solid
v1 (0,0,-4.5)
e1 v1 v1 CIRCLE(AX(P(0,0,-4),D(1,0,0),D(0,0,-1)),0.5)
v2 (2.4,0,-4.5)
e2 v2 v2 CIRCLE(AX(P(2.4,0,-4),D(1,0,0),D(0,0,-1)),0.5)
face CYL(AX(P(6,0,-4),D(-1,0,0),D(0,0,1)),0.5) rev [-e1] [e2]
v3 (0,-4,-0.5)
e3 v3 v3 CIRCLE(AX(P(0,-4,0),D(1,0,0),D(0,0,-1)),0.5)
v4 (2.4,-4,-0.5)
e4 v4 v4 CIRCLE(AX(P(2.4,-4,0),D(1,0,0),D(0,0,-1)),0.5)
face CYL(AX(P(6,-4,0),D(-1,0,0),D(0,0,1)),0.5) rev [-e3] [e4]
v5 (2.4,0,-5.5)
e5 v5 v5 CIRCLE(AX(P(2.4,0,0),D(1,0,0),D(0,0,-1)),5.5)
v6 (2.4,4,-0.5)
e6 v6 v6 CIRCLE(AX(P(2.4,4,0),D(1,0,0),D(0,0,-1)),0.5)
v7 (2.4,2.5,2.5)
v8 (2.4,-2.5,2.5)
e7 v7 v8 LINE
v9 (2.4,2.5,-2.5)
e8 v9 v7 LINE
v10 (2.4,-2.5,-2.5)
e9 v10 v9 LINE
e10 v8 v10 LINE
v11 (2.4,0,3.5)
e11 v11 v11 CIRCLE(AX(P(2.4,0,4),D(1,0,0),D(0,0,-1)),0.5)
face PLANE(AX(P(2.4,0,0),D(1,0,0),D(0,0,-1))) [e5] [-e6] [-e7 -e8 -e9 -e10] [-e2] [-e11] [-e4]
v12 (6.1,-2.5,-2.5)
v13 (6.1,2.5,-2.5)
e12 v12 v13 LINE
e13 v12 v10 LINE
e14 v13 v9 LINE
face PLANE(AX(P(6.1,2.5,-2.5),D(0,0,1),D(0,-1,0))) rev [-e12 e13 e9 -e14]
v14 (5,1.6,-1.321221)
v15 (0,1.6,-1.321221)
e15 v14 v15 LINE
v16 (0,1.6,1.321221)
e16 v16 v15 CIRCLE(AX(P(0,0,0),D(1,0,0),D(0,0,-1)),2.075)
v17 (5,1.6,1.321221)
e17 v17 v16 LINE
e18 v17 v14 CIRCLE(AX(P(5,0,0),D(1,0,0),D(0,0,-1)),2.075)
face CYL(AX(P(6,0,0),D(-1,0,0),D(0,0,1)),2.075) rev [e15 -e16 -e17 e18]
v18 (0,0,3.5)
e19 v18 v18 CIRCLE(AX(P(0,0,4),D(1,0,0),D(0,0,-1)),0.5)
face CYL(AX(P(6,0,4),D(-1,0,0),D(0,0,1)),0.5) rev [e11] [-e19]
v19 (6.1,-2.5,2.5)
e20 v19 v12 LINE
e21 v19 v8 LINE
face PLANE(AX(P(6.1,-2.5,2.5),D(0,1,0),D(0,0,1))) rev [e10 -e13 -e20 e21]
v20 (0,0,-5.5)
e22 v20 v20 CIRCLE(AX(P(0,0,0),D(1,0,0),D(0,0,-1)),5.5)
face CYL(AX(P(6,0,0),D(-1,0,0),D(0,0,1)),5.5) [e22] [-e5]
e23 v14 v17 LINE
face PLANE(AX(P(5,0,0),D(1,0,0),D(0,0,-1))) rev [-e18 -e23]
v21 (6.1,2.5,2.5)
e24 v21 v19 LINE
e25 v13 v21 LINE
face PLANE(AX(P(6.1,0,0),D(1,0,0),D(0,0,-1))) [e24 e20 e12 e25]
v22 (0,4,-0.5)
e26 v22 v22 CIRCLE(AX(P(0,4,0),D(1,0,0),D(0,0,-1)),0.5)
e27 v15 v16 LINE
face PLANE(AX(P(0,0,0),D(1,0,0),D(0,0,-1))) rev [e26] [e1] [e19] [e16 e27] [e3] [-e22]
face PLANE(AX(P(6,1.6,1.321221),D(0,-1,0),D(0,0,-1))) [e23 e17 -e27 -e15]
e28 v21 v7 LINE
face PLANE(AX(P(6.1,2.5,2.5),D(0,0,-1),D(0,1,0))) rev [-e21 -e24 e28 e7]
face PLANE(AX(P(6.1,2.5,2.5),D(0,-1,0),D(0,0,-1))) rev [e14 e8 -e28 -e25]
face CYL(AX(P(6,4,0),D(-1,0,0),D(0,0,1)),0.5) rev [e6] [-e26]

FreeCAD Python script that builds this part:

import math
import FreeCAD as App
import Part
import Sketcher
from FreeCAD import Vector
Q = App.Units.Quantity


def add_polygon(sketch, points):
    """Adds a closed chain of lines whose ends are joined by coincident constraints."""
    first, n = sketch.GeometryCount, len(points)
    for a, b in zip(points, points[1:] + points[:1]):
        sketch.addGeometry(Part.LineSegment(App.Vector(*a, 0), App.Vector(*b, 0)), False)
    for i in range(n):
        sketch.addConstraint(Sketcher.Constraint("Coincident", first + i, 2, first + (i + 1) % n, 1))

doc = App.newDocument("Part")
body = doc.addObject("PartDesign::Body", "Body")

sketch1 = doc.addObject("Sketcher::SketchObject", "Sketch")
body.addObject(sketch1)
sketch1.AttachmentSupport = (doc.YZ_Plane, [""])
sketch1.MapMode = "FlatFace"
sketch1.addGeometry([
    Part.Circle(Vector(0, 0, 0), Vector(0, 0, 1), 5.5),
    Part.Circle(Vector(-4, 0, 0), Vector(0, 0, 1), 0.5),
    Part.ArcOfCircle(Part.Circle(Vector(0, 0, 0), Vector(0, 0, 1), 2.1), math.radians(40), math.radians(320)),
    Part.LineSegment(Vector(1.6, 1.3, 0), Vector(1.6, -1.3, 0)),
    Part.Circle(Vector(0, 4, 0), Vector(0, 0, 1), 0.5),
    Part.Circle(Vector(0, -4, 0), Vector(0, 0, 1), 0.5),
    Part.Circle(Vector(4, 0, 0), Vector(0, 0, 1), 0.5),
], False)
sketch1.addConstraint([
    Sketcher.Constraint("Coincident", 2, 1, 3, 1),
    Sketcher.Constraint("Coincident", 3, 2, 2, 2),
    Sketcher.Constraint("Vertical", 3),
    Sketcher.Constraint("Coincident", 0, 3, -1, 1),
    Sketcher.Constraint("Coincident", 2, 3, -1, 1),
    Sketcher.Constraint("Equal", 1, 4),
    Sketcher.Constraint("Equal", 4, 5),
    Sketcher.Constraint("Equal", 5, 6),
    Sketcher.Constraint("Symmetric", 4, 3, 5, 3, -1, 1),
    Sketcher.Constraint("Symmetric", 1, 3, 6, 3, -1, 1),
    Sketcher.Constraint("PointOnObject", 1, 3, -1),
    Sketcher.Constraint("PointOnObject", 4, 3, -2),
    Sketcher.Constraint("Diameter", 0, Q("11 mm")),
    Sketcher.Constraint("Diameter", 1, Q("1 mm")),
    Sketcher.Constraint("DistanceX", 1, 3, -1, 1, Q("4 mm")),
    Sketcher.Constraint("DistanceY", -1, 1, 4, 3, Q("4 mm")),
    Sketcher.Constraint("Radius", 2, Q("2.075 mm")),
    Sketcher.Constraint("DistanceX", -1, 1, 2, 1, Q("1.6 mm")),
])
pad1 = doc.addObject("PartDesign::Pad", "Pad")
body.addObject(pad1)
pad1.Profile = sketch1
pad1.Length = 6

sketch2 = doc.addObject("Sketcher::SketchObject", "Sketch001")
body.addObject(sketch2)
sketch2.AttachmentSupport = (doc.YZ_Plane, [""])
sketch2.MapMode = "FlatFace"
sketch2.AttachmentOffset = App.Placement(Vector(0, 0, 6), App.Rotation())
sketch2.addGeometry(Part.Circle(Vector(0, 0, 0), Vector(0, 0, 1), 6), False)
sketch2.addConstraint([
    Sketcher.Constraint("Coincident", 0, 3, -1, 1),
    Sketcher.Constraint("Diameter", 0, Q("11 mm")),
])
pad2 = doc.addObject("PartDesign::Pad", "Pad001")
body.addObject(pad2)
pad2.Profile = sketch2
pad2.Length = 1
pad2.Reversed = True

sketch3 = doc.addObject("Sketcher::SketchObject", "Sketch002")
body.addObject(sketch3)
sketch3.AttachmentSupport = (doc.YZ_Plane, [""])
sketch3.MapMode = "FlatFace"
sketch3.addGeometry([
    Part.Circle(Vector(4, 0, 0), Vector(0, 0, 1), 0.5),
    Part.Circle(Vector(0, 4, 0), Vector(0, 0, 1), 0.5),
    Part.Circle(Vector(-4, 0, 0), Vector(0, 0, 1), 0.5),
    Part.Circle(Vector(0, -4, 0), Vector(0, 0, 1), 0.5),
], False)
sketch3.addConstraint([
    Sketcher.Constraint("Equal", 0, 1),
    Sketcher.Constraint("Equal", 1, 2),
    Sketcher.Constraint("Equal", 2, 3),
    Sketcher.Constraint("Symmetric", 0, 3, 2, 3, -1, 1),
    Sketcher.Constraint("Symmetric", 1, 3, 3, 3, -1, 1),
    Sketcher.Constraint("PointOnObject", 0, 3, -1),
    Sketcher.Constraint("PointOnObject", 1, 3, -2),
    Sketcher.Constraint("Diameter", 0, Q("1 mm")),
    Sketcher.Constraint("DistanceX", -1, 1, 0, 3, Q("4 mm")),
    Sketcher.Constraint("DistanceY", -1, 1, 1, 3, Q("4 mm")),
])
pocket1 = doc.addObject("PartDesign::Pocket", "Pocket")
body.addObject(pocket1)
pocket1.Profile = sketch3
pocket1.Type = "ThroughAll"
pocket1.Reversed = True

sketch4 = doc.addObject("Sketcher::SketchObject", "Sketch003")
body.addObject(sketch4)
sketch4.AttachmentSupport = (doc.YZ_Plane, [""])
sketch4.MapMode = "FlatFace"
sketch4.AttachmentOffset = App.Placement(Vector(0, 0, 6), App.Rotation())
add_polygon(sketch4, [(2, 2), (-2, 2), (-2, -2), (2, -2)])
sketch4.addConstraint([
    Sketcher.Constraint("Horizontal", 0),
    Sketcher.Constraint("Vertical", 1),
    Sketcher.Constraint("Horizontal", 2),
    Sketcher.Constraint("Vertical", 3),
    Sketcher.Constraint("Symmetric", 0, 2, 2, 2, -1, 1),
    Sketcher.Constraint("Equal", 2, 1),
    Sketcher.Constraint("DistanceX", 0, 2, 0, 1, Q("5 mm")),
])
pad3 = doc.addObject("PartDesign::Pad", "Pad002")
body.addObject(pad3)
pad3.Profile = sketch4
pad3.Length = 0.1

sketch5 = doc.addObject("Sketcher::SketchObject", "Sketch004")
body.addObject(sketch5)
sketch5.AttachmentSupport = (doc.YZ_Plane, [""])
sketch5.MapMode = "FlatFace"
sketch5.AttachmentOffset = App.Placement(Vector(0, 0, 6), App.Rotation())
add_polygon(sketch5, [(8, 8), (-8, 8), (-8, -8), (8, -8)])
add_polygon(sketch5, [(-2, -2), (-2, 2), (2, 2), (2, -2)])
sketch5.addConstraint([
    Sketcher.Constraint("Horizontal", 0),
    Sketcher.Constraint("Vertical", 1),
    Sketcher.Constraint("Horizontal", 2),
    Sketcher.Constraint("Vertical", 3),
    Sketcher.Constraint("Vertical", 4),
    Sketcher.Constraint("Horizontal", 5),
    Sketcher.Constraint("Vertical", 6),
    Sketcher.Constraint("Horizontal", 7),
    Sketcher.Constraint("Symmetric", 0, 2, 2, 2, -1, 1),
    Sketcher.Constraint("Symmetric", 4, 2, 6, 2, -1, 1),
    Sketcher.Constraint("Equal", 2, 1),
    Sketcher.Constraint("Equal", 7, 4),
    Sketcher.Constraint("DistanceX", 5, 1, 5, 2, Q("5 mm")),
    Sketcher.Constraint("DistanceX", 0, 2, 0, 1, Q("16.342 mm")),
])
pocket2 = doc.addObject("PartDesign::Pocket", "Pocket001")
body.addObject(pocket2)
pocket2.Profile = sketch5
pocket2.Length = 3.6

doc.recompute()
